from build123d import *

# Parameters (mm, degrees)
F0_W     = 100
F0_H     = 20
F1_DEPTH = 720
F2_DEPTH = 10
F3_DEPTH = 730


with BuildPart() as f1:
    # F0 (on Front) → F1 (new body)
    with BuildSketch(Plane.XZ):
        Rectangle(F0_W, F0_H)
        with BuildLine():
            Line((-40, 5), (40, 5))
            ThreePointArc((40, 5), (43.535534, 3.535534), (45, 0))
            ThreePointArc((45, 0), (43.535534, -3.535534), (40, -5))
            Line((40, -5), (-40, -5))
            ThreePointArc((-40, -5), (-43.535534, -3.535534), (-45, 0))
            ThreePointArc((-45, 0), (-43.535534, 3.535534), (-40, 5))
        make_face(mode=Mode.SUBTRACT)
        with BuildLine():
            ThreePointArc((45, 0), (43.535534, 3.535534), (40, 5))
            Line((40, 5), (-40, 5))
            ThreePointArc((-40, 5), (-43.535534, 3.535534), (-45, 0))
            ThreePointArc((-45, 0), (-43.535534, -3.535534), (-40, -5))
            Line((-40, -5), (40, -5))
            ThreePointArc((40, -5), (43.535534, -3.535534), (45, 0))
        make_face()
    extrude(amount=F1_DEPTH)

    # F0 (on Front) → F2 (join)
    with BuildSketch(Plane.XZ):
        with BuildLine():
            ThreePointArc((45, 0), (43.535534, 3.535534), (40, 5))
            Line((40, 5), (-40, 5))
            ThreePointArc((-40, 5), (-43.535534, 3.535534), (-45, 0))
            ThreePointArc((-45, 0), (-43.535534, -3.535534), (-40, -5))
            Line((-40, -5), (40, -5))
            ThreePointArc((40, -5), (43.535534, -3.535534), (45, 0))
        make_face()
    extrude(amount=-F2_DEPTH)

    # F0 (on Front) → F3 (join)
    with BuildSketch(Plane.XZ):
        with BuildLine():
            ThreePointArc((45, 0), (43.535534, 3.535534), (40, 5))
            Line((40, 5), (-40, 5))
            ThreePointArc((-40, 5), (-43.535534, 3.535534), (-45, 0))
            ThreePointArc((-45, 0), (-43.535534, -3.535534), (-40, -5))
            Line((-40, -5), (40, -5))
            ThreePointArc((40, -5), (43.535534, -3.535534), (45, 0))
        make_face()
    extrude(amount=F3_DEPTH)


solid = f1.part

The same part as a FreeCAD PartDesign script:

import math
import FreeCAD as App
import Part
import Sketcher


def add_polygon(sketch, points):
    """Adds a closed chain of lines whose ends are joined by coincident constraints."""
    first, n = sketch.GeometryCount, len(points)
    for a, b in zip(points, points[1:] + points[:1]):
        sketch.addGeometry(Part.LineSegment(App.Vector(*a, 0), App.Vector(*b, 0)), False)
    for i in range(n):
        sketch.addConstraint(Sketcher.Constraint("Coincident", first + i, 2, first + (i + 1) % n, 1))

doc = App.newDocument("Part")
body = doc.addObject("PartDesign::Body", "Body")

# Sketch on XZ plane
sketch1 = body.newObject("Sketcher::SketchObject", "Sketch")
sketch1.AttachmentSupport = (doc.getObject("XZ_Plane"), [""])
sketch1.MapMode = "FlatFace"
add_polygon(sketch1, [(-50, 10), (-50, -10), (50, -10), (50, 10)])  # lines 0-3
sketch1.addConstraint([
    Sketcher.Constraint("Vertical", 0),
    Sketcher.Constraint("Horizontal", 1),
    Sketcher.Constraint("Vertical", 2),
    Sketcher.Constraint("Horizontal", 3),
    Sketcher.Constraint("Symmetric", 0, 2, 2, 2, -1, 1),
    Sketcher.Constraint("DistanceX", 1, 1, 1, 2, 100.0),
    Sketcher.Constraint("DistanceY", 0, 2, 0, 1, 20.0),
])
pad1 = body.newObject("PartDesign::Pad", "Pad")
pad1.Profile = sketch1
pad1.Length = 720

# Sketch on XZ plane
sketch2 = body.newObject("Sketcher::SketchObject", "Sketch001")
sketch2.AttachmentSupport = (doc.getObject("XZ_Plane"), [""])
sketch2.MapMode = "FlatFace"
sketch2.addGeometry([
    Part.ArcOfCircle(Part.Circle(App.Vector(40, 0, 0), App.Vector(0, 0, 1), 5), math.radians(-0.000004), math.radians(90.000004)),  # 0
    Part.LineSegment(App.Vector(40, 5, 0), App.Vector(-40, 5, 0)),  # 1
    Part.ArcOfCircle(Part.Circle(App.Vector(-40, 0, 0), App.Vector(0, 0, 1), 5), math.radians(89.999996), math.radians(180.000004)),  # 2
    Part.ArcOfCircle(Part.Circle(App.Vector(-40, 0, 0), App.Vector(0, 0, 1), 5), math.radians(179.999996), math.radians(270.000004)),  # 3
    Part.LineSegment(App.Vector(-40, -5, 0), App.Vector(40, -5, 0)),  # 4
    Part.ArcOfCircle(Part.Circle(App.Vector(40, 0, 0), App.Vector(0, 0, 1), 5), math.radians(-90.000004), math.radians(0.000004)),  # 5
], False)
sketch2.addConstraint([
    Sketcher.Constraint("Tangent", 0, 2, 1, 1),
    Sketcher.Constraint("Tangent", 1, 2, 2, 1),
    Sketcher.Constraint("Tangent", 2, 2, 3, 1),
    Sketcher.Constraint("Tangent", 3, 2, 4, 1),
    Sketcher.Constraint("Tangent", 4, 2, 5, 1),
    Sketcher.Constraint("Tangent", 5, 2, 0, 1),
    Sketcher.Constraint("Horizontal", 1),
    Sketcher.Constraint("Horizontal", 4),
    Sketcher.Constraint("Equal", 0, 2),
    Sketcher.Constraint("Equal", 2, 3),
    Sketcher.Constraint("Symmetric", 0, 3, 2, 3, -1, 1),
    Sketcher.Constraint("PointOnObject", 2, 2, -1),
    Sketcher.Constraint("PointOnObject", 5, 2, -1),
    Sketcher.Constraint("Radius", 0, 5.0),
    Sketcher.Constraint("DistanceX", 1, 2, 1, 1, 80.0),
])
pad2 = body.newObject("PartDesign::Pad", "Pad001")
pad2.Profile = sketch2
pad2.Length = 10
pad2.Reversed = True

# Sketch on XZ plane
sketch3 = body.newObject("Sketcher::SketchObject", "Sketch002")
sketch3.AttachmentSupport = (doc.getObject("XZ_Plane"), [""])
sketch3.MapMode = "FlatFace"
sketch3.addGeometry([
    Part.ArcOfCircle(Part.Circle(App.Vector(40, 0, 0), App.Vector(0, 0, 1), 5), math.radians(-0.000004), math.radians(90.000004)),  # 0
    Part.LineSegment(App.Vector(40, 5, 0), App.Vector(-40, 5, 0)),  # 1
    Part.ArcOfCircle(Part.Circle(App.Vector(-40, 0, 0), App.Vector(0, 0, 1), 5), math.radians(89.999996), math.radians(180.000004)),  # 2
    Part.ArcOfCircle(Part.Circle(App.Vector(-40, 0, 0), App.Vector(0, 0, 1), 5), math.radians(179.999996), math.radians(270.000004)),  # 3
    Part.LineSegment(App.Vector(-40, -5, 0), App.Vector(40, -5, 0)),  # 4
    Part.ArcOfCircle(Part.Circle(App.Vector(40, 0, 0), App.Vector(0, 0, 1), 5), math.radians(-90.000004), math.radians(0.000004)),  # 5
], False)
sketch3.addConstraint([
    Sketcher.Constraint("Tangent", 0, 2, 1, 1),
    Sketcher.Constraint("Tangent", 1, 2, 2, 1),
    Sketcher.Constraint("Tangent", 2, 2, 3, 1),
    Sketcher.Constraint("Tangent", 3, 2, 4, 1),
    Sketcher.Constraint("Tangent", 4, 2, 5, 1),
    Sketcher.Constraint("Tangent", 5, 2, 0, 1),
    Sketcher.Constraint("Horizontal", 1),
    Sketcher.Constraint("Horizontal", 4),
    Sketcher.Constraint("Equal", 0, 2),
    Sketcher.Constraint("Equal", 2, 3),
    Sketcher.Constraint("Symmetric", 0, 3, 2, 3, -1, 1),
    Sketcher.Constraint("PointOnObject", 2, 2, -1),
    Sketcher.Constraint("PointOnObject", 5, 2, -1),
    Sketcher.Constraint("Radius", 0, 5.0),
    Sketcher.Constraint("DistanceX", 1, 2, 1, 1, 80.0),
])
pad3 = body.newObject("PartDesign::Pad", "Pad002")
pad3.Profile = sketch3
pad3.Length = 730

doc.recompute()
